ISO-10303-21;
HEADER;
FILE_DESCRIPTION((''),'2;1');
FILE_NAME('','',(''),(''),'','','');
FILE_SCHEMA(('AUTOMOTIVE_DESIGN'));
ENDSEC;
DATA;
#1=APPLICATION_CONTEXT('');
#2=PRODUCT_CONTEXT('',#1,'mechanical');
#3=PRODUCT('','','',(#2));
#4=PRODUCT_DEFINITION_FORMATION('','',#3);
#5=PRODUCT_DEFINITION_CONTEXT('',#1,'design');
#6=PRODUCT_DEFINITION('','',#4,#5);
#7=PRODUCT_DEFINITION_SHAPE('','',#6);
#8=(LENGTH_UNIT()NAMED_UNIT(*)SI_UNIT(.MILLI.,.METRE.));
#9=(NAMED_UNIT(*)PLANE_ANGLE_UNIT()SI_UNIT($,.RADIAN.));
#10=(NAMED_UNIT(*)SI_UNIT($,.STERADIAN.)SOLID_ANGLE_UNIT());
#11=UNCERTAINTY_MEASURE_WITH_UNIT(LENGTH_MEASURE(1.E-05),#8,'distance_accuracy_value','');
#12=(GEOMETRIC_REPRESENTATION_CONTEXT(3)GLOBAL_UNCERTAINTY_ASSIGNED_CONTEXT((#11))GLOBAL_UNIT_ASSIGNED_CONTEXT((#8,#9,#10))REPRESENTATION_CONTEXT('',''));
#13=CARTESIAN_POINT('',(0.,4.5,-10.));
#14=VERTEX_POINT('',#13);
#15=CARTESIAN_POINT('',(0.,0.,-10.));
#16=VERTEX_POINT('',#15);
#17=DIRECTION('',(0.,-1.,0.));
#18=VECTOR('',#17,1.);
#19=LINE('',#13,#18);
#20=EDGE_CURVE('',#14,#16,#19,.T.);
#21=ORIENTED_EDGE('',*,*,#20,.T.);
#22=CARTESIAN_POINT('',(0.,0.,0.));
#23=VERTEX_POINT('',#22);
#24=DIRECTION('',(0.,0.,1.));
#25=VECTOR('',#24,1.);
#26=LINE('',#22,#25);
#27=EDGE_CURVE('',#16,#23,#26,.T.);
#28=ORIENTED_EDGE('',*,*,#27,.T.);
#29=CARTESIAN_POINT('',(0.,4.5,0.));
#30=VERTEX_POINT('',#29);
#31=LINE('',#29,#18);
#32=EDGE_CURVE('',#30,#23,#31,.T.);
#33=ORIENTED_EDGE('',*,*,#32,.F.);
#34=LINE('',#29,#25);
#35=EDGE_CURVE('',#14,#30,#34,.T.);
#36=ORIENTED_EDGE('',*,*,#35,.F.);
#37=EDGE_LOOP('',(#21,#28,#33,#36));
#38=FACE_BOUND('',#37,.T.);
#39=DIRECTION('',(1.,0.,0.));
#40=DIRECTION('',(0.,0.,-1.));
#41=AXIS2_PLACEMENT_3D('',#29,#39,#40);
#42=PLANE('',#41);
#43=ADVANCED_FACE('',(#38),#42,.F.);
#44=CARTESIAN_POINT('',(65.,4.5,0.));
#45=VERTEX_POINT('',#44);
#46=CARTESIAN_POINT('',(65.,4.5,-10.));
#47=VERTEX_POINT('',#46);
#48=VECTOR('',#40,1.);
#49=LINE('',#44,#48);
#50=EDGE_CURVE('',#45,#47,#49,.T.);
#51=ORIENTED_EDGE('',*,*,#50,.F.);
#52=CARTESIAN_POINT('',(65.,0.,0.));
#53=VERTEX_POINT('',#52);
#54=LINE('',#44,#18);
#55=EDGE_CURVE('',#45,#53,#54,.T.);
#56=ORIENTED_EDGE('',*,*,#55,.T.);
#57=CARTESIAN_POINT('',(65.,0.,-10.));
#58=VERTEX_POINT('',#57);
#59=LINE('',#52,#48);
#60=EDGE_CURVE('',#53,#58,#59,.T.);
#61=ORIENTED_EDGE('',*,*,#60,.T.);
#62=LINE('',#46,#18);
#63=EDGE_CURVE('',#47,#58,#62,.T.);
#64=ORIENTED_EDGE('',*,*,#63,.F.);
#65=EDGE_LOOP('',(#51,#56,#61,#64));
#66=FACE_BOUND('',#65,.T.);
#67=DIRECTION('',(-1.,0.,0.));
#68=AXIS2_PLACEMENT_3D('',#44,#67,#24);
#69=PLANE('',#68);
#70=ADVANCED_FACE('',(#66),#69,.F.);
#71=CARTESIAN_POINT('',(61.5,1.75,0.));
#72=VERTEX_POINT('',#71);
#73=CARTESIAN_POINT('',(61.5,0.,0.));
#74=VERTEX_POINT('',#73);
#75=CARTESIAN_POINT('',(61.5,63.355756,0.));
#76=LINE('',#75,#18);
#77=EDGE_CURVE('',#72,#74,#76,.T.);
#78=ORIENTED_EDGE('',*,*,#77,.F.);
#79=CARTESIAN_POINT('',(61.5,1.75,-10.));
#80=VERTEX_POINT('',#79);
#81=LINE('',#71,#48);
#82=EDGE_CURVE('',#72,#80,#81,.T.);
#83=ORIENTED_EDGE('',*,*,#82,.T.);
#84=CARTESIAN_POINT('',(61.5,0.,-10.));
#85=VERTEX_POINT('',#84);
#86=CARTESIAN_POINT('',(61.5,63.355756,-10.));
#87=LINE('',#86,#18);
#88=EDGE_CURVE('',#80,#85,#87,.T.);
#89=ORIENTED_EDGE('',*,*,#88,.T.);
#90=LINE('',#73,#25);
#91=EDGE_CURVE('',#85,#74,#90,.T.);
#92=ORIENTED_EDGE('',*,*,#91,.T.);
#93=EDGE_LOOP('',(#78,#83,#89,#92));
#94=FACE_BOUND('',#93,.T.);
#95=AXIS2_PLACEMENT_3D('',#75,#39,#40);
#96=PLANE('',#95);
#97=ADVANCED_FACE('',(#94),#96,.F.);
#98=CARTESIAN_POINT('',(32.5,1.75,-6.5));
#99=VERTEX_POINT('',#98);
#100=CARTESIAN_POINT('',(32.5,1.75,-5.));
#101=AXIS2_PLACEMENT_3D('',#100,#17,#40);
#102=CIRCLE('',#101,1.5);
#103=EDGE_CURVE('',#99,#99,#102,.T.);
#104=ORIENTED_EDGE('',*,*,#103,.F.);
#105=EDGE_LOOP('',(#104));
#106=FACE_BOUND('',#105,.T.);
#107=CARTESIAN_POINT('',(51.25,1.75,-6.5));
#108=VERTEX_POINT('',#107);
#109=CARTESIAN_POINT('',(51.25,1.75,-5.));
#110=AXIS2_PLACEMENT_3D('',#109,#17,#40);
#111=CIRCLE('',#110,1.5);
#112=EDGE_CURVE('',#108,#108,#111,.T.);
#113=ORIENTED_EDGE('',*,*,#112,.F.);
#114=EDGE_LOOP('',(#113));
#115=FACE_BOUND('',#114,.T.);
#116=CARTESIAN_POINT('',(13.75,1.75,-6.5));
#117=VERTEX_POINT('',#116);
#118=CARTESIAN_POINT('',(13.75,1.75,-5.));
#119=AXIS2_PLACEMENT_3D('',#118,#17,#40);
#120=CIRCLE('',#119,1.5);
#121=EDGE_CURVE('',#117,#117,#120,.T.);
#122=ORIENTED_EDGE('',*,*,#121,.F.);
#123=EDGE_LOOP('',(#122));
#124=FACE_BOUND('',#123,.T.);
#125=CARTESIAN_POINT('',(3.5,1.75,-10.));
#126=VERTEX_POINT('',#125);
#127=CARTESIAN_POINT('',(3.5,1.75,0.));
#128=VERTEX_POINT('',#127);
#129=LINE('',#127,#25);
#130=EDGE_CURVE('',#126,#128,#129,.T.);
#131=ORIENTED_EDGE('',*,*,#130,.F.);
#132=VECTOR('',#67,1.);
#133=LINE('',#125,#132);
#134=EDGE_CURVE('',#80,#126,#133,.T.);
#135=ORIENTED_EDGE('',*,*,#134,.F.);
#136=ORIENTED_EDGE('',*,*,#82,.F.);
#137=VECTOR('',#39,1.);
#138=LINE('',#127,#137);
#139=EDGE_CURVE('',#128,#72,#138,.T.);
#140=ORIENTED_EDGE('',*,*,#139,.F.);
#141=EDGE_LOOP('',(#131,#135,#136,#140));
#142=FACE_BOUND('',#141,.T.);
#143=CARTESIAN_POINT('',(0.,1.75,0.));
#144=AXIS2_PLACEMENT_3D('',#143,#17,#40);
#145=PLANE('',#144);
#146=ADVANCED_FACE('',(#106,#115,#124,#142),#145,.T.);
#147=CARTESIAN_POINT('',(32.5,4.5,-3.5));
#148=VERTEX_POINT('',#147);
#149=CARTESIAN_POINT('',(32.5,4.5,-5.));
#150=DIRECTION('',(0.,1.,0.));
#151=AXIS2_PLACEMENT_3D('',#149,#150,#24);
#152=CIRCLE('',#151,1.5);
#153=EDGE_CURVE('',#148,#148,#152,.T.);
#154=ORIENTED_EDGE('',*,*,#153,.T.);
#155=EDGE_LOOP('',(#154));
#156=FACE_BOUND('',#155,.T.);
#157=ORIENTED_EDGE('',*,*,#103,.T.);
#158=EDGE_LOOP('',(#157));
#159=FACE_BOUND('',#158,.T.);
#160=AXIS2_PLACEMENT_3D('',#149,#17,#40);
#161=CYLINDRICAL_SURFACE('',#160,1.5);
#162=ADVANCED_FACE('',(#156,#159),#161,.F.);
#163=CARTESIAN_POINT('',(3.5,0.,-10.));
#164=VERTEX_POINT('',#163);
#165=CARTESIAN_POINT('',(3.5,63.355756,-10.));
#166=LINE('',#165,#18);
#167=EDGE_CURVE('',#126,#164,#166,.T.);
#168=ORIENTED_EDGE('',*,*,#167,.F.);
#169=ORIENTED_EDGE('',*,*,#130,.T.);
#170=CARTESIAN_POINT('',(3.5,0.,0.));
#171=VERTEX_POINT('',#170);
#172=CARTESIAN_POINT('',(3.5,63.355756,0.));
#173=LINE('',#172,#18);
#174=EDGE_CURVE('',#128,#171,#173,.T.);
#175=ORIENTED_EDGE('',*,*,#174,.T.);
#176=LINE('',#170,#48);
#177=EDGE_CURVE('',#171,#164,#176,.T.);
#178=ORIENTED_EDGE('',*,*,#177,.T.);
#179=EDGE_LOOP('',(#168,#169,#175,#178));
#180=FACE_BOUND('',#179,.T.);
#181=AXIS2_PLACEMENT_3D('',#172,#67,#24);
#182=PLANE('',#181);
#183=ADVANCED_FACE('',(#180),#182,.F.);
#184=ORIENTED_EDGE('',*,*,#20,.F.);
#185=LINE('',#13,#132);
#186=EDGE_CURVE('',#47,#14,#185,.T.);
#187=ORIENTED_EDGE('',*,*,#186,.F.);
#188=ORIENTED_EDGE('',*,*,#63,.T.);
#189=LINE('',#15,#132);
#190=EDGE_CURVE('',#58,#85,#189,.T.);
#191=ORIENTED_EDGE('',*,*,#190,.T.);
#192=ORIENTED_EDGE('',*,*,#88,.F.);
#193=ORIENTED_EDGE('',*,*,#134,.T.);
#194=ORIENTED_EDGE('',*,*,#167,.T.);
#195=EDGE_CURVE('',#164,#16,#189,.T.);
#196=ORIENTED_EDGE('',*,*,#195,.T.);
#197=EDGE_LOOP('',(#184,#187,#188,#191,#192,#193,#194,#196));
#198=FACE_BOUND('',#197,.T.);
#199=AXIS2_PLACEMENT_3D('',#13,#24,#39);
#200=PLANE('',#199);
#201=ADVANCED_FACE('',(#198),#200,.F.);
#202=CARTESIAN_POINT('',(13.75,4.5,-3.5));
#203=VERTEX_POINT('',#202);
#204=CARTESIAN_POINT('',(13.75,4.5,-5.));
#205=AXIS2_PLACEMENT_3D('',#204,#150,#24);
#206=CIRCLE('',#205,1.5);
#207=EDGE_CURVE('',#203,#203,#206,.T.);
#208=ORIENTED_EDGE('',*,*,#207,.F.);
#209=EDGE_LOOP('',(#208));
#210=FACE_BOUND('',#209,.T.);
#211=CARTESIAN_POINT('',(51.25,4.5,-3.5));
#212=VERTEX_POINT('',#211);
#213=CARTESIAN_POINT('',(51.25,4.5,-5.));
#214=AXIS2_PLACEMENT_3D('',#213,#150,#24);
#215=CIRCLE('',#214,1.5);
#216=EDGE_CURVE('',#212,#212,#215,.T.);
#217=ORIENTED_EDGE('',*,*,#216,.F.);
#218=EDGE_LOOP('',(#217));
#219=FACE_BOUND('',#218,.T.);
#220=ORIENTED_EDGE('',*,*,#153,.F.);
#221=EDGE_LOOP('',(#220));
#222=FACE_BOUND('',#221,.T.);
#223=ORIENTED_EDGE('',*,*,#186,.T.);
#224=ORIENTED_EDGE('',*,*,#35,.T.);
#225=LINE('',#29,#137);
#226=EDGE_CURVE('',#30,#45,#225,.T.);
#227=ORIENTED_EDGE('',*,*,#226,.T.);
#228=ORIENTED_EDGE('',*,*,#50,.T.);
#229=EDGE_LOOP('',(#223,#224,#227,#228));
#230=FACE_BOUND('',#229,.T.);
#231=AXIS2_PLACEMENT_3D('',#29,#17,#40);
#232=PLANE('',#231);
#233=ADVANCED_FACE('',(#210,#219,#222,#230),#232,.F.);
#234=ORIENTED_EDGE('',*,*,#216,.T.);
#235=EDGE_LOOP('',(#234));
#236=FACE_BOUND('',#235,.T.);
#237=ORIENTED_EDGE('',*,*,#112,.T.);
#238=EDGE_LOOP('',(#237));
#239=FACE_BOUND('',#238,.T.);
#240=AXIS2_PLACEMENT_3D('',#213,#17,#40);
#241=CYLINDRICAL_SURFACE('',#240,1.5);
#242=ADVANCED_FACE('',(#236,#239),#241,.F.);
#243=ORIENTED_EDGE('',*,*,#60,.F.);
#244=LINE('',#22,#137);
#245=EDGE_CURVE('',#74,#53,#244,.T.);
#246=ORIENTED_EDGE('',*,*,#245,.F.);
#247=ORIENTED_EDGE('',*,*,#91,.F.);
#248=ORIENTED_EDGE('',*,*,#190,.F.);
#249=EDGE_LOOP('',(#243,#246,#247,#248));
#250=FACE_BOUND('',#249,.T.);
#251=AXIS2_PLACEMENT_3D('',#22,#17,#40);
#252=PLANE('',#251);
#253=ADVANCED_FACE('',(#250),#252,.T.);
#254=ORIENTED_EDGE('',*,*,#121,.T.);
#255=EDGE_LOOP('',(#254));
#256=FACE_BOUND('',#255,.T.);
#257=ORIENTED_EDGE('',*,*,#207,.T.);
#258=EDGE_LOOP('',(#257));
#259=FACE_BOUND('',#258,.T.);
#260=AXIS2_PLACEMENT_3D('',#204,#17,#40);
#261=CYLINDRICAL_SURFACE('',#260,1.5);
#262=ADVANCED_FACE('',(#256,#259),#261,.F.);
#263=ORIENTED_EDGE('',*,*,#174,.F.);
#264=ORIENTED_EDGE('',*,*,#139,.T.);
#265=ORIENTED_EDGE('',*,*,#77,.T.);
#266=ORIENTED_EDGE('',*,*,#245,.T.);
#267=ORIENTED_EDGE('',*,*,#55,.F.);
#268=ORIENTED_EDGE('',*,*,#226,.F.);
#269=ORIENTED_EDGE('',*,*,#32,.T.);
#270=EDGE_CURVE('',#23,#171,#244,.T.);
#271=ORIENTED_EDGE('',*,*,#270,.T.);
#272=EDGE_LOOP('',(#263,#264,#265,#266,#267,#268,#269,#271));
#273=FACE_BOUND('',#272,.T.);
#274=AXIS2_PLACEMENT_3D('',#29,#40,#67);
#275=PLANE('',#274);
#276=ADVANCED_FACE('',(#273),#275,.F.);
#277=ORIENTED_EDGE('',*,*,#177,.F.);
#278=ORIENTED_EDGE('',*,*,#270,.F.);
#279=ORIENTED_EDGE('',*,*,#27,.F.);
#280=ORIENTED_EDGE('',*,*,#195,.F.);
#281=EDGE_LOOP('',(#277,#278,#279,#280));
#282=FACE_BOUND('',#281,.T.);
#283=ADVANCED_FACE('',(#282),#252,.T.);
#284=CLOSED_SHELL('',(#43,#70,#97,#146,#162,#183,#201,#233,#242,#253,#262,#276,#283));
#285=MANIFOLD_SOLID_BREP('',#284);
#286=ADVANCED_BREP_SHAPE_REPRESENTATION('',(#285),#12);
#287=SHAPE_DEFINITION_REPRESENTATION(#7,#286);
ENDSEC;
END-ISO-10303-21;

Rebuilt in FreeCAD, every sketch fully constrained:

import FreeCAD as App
import Part
import Sketcher

V = App.Vector
Q = App.Units.Quantity

doc = App.newDocument("Part")
body = doc.addObject("PartDesign::Body", "Body")

# Sketch on XZ plane
sketch1 = body.newObject("Sketcher::SketchObject", "Sketch")
sketch1.AttachmentSupport = (doc.getObject("XZ_Plane"), [""])
sketch1.MapMode = "FlatFace"
sketch1.addGeometry([
    Part.LineSegment(V(0, -10, 0), V(0, 0, 0)),  # 0
    Part.LineSegment(V(0, 0, 0), V(65, 0, 0)),  # 1
    Part.LineSegment(V(65, 0, 0), V(65, -10, 0)),  # 2
    Part.LineSegment(V(65, -10, 0), V(0, -10, 0)),  # 3
    Part.Circle(V(13.8, -5, 0), V(0, 0, 1), 1.5),  # 4
    Part.Circle(V(32.5, -5, 0), V(0, 0, 1), 1.5),  # 5
    Part.Circle(V(51.2, -5, 0), V(0, 0, 1), 1.5),  # 6
], False)
sketch1.addConstraint([
    Sketcher.Constraint("Coincident", 0, 2, 1, 1),
    Sketcher.Constraint("Coincident", 1, 2, 2, 1),
    Sketcher.Constraint("Coincident", 2, 2, 3, 1),
    Sketcher.Constraint("Coincident", 3, 2, 0, 1),
    Sketcher.Constraint("Vertical", 0),
    Sketcher.Constraint("Horizontal", 1),
    Sketcher.Constraint("Vertical", 2),
    Sketcher.Constraint("Horizontal", 3),
    Sketcher.Constraint("Coincident", 0, 2, -1, 1),
    Sketcher.Constraint("Equal", 4, 5),
    Sketcher.Constraint("Equal", 5, 6),
    Sketcher.Constraint("Horizontal", 4, 3, 5, 3),
    Sketcher.Constraint("Horizontal", 5, 3, 6, 3),
    Sketcher.Constraint("Diameter", 4, Q("3 mm")),
    Sketcher.Constraint("DistanceX", 1, 1, 1, 2, Q("65 mm")),
    Sketcher.Constraint("DistanceY", 0, 1, 0, 2, Q("10 mm")),
    Sketcher.Constraint("DistanceY", 4, 3, -1, 1, Q("5 mm")),
    Sketcher.Constraint("DistanceX", -1, 1, 5, 3, Q("32.5 mm")),
    Sketcher.Constraint("DistanceX", 4, 3, 6, 3, Q("37.5 mm")),
    Sketcher.Constraint("DistanceX", -1, 1, 4, 3, Q("13.75 mm")),
])
pad1 = body.newObject("PartDesign::Pad", "Pad")
pad1.Profile = sketch1
pad1.Length = 4.5
pad1.Reversed = True

# Sketch on XZ plane
sketch2 = body.newObject("Sketcher::SketchObject", "Sketch001")
sketch2.AttachmentSupport = (doc.getObject("XZ_Plane"), [""])
sketch2.MapMode = "FlatFace"
sketch2.addGeometry([
    Part.LineSegment(V(4, 0, 0), V(4, -10, 0)),
    Part.LineSegment(V(4, -10, 0), V(62, -10, 0)),
    Part.LineSegment(V(62, -10, 0), V(62, 0, 0)),
    Part.LineSegment(V(62, 0, 0), V(4, 0, 0)),
], False)
sketch2.addConstraint([
    Sketcher.Constraint("Coincident", 0, 2, 1, 1),
    Sketcher.Constraint("Coincident", 1, 2, 2, 1),
    Sketcher.Constraint("Coincident", 2, 2, 3, 1),
    Sketcher.Constraint("Coincident", 3, 2, 0, 1),
    Sketcher.Constraint("Vertical", 0),
    Sketcher.Constraint("Horizontal", 1),
    Sketcher.Constraint("Vertical", 2),
    Sketcher.Constraint("Horizontal", 3),
    Sketcher.Constraint("PointOnObject", 2, 2, -1),
    Sketcher.Constraint("DistanceX", 1, 1, 1, 2, Q("58 mm")),
    Sketcher.Constraint("DistanceY", 0, 2, 0, 1, Q("10 mm")),
    Sketcher.Constraint("DistanceX", -1, 1, 0, 2, Q("3.5 mm")),
])
pocket1 = body.newObject("PartDesign::Pocket", "Pocket")
pocket1.Profile = sketch2
pocket1.Length = 1.75

doc.recompute()
